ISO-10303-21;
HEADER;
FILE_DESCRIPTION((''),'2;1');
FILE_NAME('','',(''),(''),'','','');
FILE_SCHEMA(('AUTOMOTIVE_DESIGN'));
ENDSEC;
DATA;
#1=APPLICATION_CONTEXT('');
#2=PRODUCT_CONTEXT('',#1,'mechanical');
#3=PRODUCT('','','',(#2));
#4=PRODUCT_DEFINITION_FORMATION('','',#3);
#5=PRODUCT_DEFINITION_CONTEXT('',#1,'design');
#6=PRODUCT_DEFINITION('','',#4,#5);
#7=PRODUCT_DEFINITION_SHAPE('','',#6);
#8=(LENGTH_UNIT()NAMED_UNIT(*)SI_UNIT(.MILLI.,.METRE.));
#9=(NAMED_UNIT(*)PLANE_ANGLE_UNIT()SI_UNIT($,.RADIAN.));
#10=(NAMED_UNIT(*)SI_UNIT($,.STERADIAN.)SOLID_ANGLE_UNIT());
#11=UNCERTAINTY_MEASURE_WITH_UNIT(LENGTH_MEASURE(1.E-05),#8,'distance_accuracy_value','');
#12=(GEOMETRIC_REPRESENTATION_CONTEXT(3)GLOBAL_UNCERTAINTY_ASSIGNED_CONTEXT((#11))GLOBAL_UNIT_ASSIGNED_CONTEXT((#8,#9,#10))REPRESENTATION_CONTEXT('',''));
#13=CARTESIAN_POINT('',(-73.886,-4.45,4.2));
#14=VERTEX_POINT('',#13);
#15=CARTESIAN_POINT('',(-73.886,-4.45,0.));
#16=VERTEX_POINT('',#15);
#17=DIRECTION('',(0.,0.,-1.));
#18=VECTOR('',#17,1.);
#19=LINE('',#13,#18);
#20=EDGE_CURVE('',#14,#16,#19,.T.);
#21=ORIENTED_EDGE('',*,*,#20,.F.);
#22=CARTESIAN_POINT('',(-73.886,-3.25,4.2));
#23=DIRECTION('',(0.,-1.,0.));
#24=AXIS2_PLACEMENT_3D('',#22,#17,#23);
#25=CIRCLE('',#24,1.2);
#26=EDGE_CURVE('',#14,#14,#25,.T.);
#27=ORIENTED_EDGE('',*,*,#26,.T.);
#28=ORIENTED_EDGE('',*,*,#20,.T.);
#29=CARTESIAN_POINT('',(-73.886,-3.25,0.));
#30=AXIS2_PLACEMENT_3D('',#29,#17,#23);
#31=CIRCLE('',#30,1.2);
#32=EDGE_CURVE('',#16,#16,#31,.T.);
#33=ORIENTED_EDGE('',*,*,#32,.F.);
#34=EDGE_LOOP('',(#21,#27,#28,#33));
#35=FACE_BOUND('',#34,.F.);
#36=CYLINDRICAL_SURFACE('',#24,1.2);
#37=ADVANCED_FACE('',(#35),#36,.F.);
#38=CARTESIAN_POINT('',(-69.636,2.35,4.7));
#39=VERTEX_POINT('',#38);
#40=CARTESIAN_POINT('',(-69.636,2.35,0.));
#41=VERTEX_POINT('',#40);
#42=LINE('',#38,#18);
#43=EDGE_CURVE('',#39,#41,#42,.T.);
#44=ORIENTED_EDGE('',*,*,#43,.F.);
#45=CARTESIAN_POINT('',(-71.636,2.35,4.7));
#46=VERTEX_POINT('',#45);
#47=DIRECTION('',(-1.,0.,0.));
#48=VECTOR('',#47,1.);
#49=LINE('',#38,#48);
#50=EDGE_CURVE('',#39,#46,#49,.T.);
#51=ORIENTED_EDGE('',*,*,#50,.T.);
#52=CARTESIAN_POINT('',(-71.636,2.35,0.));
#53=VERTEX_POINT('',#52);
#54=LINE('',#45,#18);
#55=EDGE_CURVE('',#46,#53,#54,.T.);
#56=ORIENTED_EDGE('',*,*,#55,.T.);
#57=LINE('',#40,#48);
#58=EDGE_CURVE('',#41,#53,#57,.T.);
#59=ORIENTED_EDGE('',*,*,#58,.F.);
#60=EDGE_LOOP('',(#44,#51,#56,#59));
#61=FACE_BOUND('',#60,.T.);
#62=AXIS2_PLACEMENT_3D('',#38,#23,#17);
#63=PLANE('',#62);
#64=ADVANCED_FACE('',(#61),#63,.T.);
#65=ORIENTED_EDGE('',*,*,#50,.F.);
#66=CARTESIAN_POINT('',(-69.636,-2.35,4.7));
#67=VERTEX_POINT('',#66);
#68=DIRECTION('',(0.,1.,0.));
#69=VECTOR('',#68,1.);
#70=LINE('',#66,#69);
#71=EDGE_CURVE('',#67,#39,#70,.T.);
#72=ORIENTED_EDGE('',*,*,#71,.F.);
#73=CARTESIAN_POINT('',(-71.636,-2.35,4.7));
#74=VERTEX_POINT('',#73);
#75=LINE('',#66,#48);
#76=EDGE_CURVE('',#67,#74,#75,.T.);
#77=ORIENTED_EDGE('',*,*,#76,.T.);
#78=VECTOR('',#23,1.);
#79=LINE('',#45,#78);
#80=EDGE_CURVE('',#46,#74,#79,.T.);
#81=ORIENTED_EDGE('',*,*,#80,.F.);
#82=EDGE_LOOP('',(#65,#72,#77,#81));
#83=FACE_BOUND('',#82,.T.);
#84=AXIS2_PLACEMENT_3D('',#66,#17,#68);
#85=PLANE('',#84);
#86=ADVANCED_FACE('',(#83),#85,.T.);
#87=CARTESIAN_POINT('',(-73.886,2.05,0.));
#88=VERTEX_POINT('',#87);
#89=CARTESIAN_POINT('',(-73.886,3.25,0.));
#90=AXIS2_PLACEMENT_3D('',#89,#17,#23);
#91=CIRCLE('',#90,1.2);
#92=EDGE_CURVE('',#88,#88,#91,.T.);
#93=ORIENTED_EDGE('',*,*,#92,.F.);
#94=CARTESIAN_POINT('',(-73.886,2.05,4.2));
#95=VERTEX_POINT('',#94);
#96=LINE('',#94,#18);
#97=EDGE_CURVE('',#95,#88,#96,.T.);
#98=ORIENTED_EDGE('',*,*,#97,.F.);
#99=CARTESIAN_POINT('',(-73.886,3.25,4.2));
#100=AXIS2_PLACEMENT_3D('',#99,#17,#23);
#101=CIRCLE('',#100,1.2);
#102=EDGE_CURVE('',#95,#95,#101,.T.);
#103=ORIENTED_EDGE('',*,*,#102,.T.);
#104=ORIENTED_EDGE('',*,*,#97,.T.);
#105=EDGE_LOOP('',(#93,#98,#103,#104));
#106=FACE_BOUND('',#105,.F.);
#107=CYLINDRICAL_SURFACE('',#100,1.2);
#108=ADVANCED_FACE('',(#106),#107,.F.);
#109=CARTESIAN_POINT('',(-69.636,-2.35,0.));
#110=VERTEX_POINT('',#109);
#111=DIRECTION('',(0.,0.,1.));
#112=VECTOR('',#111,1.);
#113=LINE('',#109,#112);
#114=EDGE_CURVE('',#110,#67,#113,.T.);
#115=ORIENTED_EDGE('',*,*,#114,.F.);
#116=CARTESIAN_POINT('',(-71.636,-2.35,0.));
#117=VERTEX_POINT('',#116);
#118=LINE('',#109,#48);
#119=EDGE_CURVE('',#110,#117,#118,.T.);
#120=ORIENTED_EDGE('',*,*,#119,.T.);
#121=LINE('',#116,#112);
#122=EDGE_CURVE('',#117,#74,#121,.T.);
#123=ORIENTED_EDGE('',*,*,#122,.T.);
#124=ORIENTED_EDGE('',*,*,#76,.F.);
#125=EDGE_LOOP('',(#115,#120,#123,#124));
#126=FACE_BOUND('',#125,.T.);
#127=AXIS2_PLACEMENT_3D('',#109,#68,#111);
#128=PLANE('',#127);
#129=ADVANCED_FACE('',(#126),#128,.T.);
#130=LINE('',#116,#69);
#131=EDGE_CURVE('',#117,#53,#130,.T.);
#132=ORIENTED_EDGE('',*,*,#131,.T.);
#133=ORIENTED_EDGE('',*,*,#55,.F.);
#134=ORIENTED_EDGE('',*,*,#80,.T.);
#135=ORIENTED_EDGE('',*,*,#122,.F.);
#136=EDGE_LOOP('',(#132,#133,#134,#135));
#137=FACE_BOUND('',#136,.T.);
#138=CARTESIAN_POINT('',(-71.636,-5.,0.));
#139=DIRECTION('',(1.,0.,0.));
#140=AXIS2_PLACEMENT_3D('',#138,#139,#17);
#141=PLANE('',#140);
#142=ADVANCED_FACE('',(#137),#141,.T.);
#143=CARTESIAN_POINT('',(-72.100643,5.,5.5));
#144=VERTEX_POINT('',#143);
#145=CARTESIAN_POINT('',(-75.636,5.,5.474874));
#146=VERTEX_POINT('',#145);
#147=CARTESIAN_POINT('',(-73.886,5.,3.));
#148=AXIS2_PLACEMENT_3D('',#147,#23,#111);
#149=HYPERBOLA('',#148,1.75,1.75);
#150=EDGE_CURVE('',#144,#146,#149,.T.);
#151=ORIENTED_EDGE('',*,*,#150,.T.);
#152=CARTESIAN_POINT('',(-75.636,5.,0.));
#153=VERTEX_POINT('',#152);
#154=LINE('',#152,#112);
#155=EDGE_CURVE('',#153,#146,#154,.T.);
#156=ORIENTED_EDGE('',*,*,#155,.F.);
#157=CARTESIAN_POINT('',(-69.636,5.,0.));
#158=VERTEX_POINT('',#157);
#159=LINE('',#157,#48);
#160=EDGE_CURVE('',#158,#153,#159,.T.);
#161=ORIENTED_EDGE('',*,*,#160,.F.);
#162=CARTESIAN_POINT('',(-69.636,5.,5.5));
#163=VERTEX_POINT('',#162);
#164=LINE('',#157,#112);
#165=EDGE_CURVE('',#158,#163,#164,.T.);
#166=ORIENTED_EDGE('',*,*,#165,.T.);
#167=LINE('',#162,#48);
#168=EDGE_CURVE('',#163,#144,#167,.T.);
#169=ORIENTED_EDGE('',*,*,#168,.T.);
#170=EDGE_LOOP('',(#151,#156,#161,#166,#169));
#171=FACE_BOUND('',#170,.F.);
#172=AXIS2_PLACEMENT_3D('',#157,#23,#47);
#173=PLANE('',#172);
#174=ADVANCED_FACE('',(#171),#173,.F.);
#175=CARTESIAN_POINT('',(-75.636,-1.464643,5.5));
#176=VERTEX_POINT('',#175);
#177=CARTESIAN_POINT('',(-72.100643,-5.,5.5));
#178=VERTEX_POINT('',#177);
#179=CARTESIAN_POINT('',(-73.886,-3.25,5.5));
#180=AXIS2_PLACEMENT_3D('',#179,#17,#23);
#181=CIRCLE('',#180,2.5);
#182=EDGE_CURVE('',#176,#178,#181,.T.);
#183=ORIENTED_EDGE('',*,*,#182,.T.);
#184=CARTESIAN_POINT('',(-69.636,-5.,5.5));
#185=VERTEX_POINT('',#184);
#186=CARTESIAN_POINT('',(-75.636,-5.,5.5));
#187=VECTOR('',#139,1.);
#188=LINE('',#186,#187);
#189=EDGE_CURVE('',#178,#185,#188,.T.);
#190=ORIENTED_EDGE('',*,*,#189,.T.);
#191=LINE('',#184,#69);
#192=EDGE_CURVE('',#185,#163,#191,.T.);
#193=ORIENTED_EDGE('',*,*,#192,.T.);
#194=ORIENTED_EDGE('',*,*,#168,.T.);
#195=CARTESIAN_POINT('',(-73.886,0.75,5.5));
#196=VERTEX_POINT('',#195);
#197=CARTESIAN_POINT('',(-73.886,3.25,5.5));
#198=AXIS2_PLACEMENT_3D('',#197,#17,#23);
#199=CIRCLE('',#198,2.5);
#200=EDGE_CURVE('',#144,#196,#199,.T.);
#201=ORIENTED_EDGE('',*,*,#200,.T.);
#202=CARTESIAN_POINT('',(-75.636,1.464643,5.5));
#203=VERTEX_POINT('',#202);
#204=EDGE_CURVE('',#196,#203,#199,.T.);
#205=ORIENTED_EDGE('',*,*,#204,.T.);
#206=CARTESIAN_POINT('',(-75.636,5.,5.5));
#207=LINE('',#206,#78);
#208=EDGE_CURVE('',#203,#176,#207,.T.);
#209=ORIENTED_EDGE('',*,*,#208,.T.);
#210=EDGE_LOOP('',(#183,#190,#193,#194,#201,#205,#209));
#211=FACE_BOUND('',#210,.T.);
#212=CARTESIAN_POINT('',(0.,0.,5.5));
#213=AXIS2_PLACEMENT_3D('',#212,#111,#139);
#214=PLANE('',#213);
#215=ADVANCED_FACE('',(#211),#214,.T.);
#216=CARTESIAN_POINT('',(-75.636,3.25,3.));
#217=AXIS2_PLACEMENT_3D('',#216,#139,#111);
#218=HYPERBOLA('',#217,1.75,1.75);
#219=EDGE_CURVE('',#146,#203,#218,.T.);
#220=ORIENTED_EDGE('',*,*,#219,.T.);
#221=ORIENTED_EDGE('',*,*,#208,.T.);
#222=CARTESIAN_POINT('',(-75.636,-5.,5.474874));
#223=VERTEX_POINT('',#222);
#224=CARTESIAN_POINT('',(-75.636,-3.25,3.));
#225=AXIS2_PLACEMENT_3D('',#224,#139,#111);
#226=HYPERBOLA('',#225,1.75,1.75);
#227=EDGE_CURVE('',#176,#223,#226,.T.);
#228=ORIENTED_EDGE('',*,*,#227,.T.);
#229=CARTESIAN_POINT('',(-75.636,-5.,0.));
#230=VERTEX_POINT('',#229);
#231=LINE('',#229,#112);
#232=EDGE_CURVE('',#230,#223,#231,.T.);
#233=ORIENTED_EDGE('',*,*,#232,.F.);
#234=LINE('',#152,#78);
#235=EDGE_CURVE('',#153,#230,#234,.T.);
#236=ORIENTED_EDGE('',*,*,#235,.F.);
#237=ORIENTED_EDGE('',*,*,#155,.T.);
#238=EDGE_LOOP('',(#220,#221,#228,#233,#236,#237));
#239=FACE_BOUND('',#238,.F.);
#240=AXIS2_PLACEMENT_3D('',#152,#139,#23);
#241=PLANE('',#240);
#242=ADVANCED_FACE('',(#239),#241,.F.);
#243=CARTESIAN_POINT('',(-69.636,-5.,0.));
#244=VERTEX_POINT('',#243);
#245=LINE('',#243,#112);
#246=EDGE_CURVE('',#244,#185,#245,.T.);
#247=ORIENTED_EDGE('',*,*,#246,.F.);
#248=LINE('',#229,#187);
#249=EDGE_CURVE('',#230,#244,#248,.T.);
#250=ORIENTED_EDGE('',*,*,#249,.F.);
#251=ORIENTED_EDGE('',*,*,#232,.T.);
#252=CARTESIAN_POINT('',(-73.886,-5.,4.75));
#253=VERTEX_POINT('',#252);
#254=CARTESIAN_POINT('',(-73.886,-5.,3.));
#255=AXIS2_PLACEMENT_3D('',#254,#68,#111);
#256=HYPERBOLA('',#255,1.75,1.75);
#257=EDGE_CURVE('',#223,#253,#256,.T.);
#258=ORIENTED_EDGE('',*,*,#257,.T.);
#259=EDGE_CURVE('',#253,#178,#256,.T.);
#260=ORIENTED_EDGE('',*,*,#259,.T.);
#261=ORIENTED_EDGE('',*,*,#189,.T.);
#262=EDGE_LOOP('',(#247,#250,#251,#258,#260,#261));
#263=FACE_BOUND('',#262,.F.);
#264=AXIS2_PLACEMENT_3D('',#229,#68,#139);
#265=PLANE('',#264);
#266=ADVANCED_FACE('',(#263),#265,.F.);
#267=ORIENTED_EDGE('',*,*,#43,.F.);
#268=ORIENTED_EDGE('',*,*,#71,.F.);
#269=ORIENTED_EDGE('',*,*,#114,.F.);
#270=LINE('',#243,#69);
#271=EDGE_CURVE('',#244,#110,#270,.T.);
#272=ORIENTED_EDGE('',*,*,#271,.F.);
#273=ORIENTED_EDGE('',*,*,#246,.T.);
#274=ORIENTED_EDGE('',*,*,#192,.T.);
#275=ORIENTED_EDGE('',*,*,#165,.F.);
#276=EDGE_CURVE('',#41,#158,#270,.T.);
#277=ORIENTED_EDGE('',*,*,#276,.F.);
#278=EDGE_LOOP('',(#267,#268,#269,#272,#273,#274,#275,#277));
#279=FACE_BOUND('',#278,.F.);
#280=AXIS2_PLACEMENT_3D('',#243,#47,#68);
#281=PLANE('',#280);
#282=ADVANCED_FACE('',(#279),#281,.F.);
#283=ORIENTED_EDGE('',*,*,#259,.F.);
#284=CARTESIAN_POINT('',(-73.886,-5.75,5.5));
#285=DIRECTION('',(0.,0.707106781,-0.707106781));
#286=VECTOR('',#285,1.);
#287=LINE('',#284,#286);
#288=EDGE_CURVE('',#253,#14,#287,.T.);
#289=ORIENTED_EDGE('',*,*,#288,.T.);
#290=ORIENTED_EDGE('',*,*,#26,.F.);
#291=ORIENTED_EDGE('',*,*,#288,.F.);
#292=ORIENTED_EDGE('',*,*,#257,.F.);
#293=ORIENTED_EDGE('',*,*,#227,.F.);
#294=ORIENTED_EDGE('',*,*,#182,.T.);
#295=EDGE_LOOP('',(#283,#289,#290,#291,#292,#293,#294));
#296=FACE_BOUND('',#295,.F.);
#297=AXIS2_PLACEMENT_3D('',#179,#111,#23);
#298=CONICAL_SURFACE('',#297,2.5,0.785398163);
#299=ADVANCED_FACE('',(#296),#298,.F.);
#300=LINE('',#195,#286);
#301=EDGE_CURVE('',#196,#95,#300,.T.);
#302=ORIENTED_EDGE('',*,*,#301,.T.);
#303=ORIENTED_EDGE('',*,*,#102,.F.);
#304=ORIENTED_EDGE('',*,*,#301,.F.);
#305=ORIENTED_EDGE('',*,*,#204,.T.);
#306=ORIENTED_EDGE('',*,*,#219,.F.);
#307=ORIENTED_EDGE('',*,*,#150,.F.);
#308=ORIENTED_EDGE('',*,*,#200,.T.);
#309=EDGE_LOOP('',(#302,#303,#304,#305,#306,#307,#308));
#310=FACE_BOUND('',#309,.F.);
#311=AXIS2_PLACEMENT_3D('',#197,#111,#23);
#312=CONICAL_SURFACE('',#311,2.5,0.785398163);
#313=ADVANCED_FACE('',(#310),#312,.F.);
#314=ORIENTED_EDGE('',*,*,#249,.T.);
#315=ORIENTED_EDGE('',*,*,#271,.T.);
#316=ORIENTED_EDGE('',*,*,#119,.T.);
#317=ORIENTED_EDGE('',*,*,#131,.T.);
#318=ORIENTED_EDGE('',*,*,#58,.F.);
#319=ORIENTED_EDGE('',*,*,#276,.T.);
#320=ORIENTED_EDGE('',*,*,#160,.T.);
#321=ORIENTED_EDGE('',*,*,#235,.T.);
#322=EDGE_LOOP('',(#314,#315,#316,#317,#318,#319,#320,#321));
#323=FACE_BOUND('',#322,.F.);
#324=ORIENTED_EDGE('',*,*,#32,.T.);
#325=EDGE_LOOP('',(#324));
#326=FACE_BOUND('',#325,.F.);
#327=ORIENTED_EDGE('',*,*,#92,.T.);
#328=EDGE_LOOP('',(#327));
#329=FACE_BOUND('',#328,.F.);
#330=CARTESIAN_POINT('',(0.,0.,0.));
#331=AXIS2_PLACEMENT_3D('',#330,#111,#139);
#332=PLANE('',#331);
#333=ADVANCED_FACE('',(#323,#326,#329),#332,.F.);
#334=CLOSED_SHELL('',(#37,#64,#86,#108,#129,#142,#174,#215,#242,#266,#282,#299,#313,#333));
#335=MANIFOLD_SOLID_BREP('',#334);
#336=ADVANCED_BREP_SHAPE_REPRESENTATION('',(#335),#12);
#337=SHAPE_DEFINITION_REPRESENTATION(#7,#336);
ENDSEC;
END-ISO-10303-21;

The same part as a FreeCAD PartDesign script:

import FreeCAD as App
import Part
import Sketcher

V = App.Vector
Q = App.Units.Quantity

doc = App.newDocument("Part")
body = doc.addObject("PartDesign::Body", "Body")

# Sketch on XY plane
sketch1 = doc.addObject("Sketcher::SketchObject", "Sketch")
body.addObject(sketch1)
sketch1.AttachmentSupport = (doc.XY_Plane, [""])
sketch1.MapMode = "FlatFace"
sketch1.addGeometry(Part.LineSegment(V(-76, 5, 0), V(-76, -5, 0)), False)
sketch1.addGeometry(Part.LineSegment(V(-76, -5, 0), V(-70, -5, 0)), False)
sketch1.addGeometry(Part.LineSegment(V(-70, -5, 0), V(-70, 5, 0)), False)
sketch1.addGeometry(Part.LineSegment(V(-70, 5, 0), V(-76, 5, 0)), False)
sketch1.addConstraint(Sketcher.Constraint("Coincident", 0, 2, 1, 1))
sketch1.addConstraint(Sketcher.Constraint("Coincident", 1, 2, 2, 1))
sketch1.addConstraint(Sketcher.Constraint("Coincident", 2, 2, 3, 1))
sketch1.addConstraint(Sketcher.Constraint("Coincident", 3, 2, 0, 1))
sketch1.addConstraint(Sketcher.Constraint("Vertical", 0))
sketch1.addConstraint(Sketcher.Constraint("Horizontal", 1))
sketch1.addConstraint(Sketcher.Constraint("Vertical", 2))
sketch1.addConstraint(Sketcher.Constraint("Horizontal", 3))
sketch1.addConstraint(Sketcher.Constraint("DistanceX", 1, 1, 1, 2, Q("6 mm")))
sketch1.addConstraint(Sketcher.Constraint("DistanceY", 0, 2, 0, 1, Q("10 mm")))
sketch1.addConstraint(Sketcher.Constraint("DistanceY", 0, 2, -1, 1, Q("5 mm")))
sketch1.addConstraint(Sketcher.Constraint("DistanceX", 0, 2, -1, 1, Q("75.636 mm")))
pad1 = doc.addObject("PartDesign::Pad", "Pad")
body.addObject(pad1)
pad1.Profile = sketch1
pad1.Length = 5.5

# Sketch on YZ plane
sketch2 = doc.addObject("Sketcher::SketchObject", "Sketch001")
body.addObject(sketch2)
sketch2.AttachmentSupport = (doc.YZ_Plane, [""])
sketch2.MapMode = "FlatFace"
sketch2.AttachmentOffset = App.Placement(V(0, 0, -69.636), App.Rotation())
sketch2.addGeometry(Part.LineSegment(V(-2.4, 4.7, 0), V(-2.4, 0, 0)), False)
sketch2.addGeometry(Part.LineSegment(V(-2.4, 0, 0), V(2.4, 0, 0)), False)
sketch2.addGeometry(Part.LineSegment(V(2.4, 0, 0), V(2.4, 4.7, 0)), False)
sketch2.addGeometry(Part.LineSegment(V(2.4, 4.7, 0), V(-2.4, 4.7, 0)), False)
sketch2.addConstraint(Sketcher.Constraint("Coincident", 0, 2, 1, 1))
sketch2.addConstraint(Sketcher.Constraint("Coincident", 1, 2, 2, 1))
sketch2.addConstraint(Sketcher.Constraint("Coincident", 2, 2, 3, 1))
sketch2.addConstraint(Sketcher.Constraint("Coincident", 3, 2, 0, 1))
sketch2.addConstraint(Sketcher.Constraint("Vertical", 0))
sketch2.addConstraint(Sketcher.Constraint("Horizontal", 1))
sketch2.addConstraint(Sketcher.Constraint("Vertical", 2))
sketch2.addConstraint(Sketcher.Constraint("Horizontal", 3))
sketch2.addConstraint(Sketcher.Constraint("Symmetric", 0, 2, 1, 2, -1, 1))
sketch2.addConstraint(Sketcher.Constraint("Equal", 3, 0))
sketch2.addConstraint(Sketcher.Constraint("DistanceX", 1, 1, 1, 2, Q("4.7 mm")))
pocket1 = doc.addObject("PartDesign::Pocket", "Pocket")
body.addObject(pocket1)
pocket1.Profile = sketch2
pocket1.Length = 2

# Sketch on XY plane
sketch3 = doc.addObject("Sketcher::SketchObject", "Sketch002")
body.addObject(sketch3)
sketch3.AttachmentSupport = (doc.XY_Plane, [""])
sketch3.MapMode = "FlatFace"
sketch3.AttachmentOffset = App.Placement(V(0, 0, 5.5), App.Rotation())
sketch3.addGeometry(Part.Circle(V(-73.9, 3.2, 0), V(0, 0, 1), 1.2), False)
sketch3.addGeometry(Part.Circle(V(-73.9, -3.2, 0), V(0, 0, 1), 1.2), False)
sketch3.addConstraint(Sketcher.Constraint("Equal", 0, 1))
sketch3.addConstraint(Sketcher.Constraint("Symmetric", 0, 3, 1, 3, -1))
sketch3.addConstraint(Sketcher.Constraint("Diameter", 0, Q("2.4 mm")))
sketch3.addConstraint(Sketcher.Constraint("DistanceY", 1, 3, 0, 3, Q("6.5 mm")))
sketch3.addConstraint(Sketcher.Constraint("DistanceX", 0, 3, -1, 1, Q("73.886 mm")))
doc.recompute()
hole = doc.addObject("PartDesign::Hole", "Hole")
body.addObject(hole)
hole.Profile = sketch3
hole.ThreadType = "None"
hole.Diameter = 2.4
hole.DepthType = "ThroughAll"
hole.HoleCutType = "Countersink"
hole.HoleCutDiameter = 5
hole.HoleCutCountersinkAngle = 90

doc.recompute()
